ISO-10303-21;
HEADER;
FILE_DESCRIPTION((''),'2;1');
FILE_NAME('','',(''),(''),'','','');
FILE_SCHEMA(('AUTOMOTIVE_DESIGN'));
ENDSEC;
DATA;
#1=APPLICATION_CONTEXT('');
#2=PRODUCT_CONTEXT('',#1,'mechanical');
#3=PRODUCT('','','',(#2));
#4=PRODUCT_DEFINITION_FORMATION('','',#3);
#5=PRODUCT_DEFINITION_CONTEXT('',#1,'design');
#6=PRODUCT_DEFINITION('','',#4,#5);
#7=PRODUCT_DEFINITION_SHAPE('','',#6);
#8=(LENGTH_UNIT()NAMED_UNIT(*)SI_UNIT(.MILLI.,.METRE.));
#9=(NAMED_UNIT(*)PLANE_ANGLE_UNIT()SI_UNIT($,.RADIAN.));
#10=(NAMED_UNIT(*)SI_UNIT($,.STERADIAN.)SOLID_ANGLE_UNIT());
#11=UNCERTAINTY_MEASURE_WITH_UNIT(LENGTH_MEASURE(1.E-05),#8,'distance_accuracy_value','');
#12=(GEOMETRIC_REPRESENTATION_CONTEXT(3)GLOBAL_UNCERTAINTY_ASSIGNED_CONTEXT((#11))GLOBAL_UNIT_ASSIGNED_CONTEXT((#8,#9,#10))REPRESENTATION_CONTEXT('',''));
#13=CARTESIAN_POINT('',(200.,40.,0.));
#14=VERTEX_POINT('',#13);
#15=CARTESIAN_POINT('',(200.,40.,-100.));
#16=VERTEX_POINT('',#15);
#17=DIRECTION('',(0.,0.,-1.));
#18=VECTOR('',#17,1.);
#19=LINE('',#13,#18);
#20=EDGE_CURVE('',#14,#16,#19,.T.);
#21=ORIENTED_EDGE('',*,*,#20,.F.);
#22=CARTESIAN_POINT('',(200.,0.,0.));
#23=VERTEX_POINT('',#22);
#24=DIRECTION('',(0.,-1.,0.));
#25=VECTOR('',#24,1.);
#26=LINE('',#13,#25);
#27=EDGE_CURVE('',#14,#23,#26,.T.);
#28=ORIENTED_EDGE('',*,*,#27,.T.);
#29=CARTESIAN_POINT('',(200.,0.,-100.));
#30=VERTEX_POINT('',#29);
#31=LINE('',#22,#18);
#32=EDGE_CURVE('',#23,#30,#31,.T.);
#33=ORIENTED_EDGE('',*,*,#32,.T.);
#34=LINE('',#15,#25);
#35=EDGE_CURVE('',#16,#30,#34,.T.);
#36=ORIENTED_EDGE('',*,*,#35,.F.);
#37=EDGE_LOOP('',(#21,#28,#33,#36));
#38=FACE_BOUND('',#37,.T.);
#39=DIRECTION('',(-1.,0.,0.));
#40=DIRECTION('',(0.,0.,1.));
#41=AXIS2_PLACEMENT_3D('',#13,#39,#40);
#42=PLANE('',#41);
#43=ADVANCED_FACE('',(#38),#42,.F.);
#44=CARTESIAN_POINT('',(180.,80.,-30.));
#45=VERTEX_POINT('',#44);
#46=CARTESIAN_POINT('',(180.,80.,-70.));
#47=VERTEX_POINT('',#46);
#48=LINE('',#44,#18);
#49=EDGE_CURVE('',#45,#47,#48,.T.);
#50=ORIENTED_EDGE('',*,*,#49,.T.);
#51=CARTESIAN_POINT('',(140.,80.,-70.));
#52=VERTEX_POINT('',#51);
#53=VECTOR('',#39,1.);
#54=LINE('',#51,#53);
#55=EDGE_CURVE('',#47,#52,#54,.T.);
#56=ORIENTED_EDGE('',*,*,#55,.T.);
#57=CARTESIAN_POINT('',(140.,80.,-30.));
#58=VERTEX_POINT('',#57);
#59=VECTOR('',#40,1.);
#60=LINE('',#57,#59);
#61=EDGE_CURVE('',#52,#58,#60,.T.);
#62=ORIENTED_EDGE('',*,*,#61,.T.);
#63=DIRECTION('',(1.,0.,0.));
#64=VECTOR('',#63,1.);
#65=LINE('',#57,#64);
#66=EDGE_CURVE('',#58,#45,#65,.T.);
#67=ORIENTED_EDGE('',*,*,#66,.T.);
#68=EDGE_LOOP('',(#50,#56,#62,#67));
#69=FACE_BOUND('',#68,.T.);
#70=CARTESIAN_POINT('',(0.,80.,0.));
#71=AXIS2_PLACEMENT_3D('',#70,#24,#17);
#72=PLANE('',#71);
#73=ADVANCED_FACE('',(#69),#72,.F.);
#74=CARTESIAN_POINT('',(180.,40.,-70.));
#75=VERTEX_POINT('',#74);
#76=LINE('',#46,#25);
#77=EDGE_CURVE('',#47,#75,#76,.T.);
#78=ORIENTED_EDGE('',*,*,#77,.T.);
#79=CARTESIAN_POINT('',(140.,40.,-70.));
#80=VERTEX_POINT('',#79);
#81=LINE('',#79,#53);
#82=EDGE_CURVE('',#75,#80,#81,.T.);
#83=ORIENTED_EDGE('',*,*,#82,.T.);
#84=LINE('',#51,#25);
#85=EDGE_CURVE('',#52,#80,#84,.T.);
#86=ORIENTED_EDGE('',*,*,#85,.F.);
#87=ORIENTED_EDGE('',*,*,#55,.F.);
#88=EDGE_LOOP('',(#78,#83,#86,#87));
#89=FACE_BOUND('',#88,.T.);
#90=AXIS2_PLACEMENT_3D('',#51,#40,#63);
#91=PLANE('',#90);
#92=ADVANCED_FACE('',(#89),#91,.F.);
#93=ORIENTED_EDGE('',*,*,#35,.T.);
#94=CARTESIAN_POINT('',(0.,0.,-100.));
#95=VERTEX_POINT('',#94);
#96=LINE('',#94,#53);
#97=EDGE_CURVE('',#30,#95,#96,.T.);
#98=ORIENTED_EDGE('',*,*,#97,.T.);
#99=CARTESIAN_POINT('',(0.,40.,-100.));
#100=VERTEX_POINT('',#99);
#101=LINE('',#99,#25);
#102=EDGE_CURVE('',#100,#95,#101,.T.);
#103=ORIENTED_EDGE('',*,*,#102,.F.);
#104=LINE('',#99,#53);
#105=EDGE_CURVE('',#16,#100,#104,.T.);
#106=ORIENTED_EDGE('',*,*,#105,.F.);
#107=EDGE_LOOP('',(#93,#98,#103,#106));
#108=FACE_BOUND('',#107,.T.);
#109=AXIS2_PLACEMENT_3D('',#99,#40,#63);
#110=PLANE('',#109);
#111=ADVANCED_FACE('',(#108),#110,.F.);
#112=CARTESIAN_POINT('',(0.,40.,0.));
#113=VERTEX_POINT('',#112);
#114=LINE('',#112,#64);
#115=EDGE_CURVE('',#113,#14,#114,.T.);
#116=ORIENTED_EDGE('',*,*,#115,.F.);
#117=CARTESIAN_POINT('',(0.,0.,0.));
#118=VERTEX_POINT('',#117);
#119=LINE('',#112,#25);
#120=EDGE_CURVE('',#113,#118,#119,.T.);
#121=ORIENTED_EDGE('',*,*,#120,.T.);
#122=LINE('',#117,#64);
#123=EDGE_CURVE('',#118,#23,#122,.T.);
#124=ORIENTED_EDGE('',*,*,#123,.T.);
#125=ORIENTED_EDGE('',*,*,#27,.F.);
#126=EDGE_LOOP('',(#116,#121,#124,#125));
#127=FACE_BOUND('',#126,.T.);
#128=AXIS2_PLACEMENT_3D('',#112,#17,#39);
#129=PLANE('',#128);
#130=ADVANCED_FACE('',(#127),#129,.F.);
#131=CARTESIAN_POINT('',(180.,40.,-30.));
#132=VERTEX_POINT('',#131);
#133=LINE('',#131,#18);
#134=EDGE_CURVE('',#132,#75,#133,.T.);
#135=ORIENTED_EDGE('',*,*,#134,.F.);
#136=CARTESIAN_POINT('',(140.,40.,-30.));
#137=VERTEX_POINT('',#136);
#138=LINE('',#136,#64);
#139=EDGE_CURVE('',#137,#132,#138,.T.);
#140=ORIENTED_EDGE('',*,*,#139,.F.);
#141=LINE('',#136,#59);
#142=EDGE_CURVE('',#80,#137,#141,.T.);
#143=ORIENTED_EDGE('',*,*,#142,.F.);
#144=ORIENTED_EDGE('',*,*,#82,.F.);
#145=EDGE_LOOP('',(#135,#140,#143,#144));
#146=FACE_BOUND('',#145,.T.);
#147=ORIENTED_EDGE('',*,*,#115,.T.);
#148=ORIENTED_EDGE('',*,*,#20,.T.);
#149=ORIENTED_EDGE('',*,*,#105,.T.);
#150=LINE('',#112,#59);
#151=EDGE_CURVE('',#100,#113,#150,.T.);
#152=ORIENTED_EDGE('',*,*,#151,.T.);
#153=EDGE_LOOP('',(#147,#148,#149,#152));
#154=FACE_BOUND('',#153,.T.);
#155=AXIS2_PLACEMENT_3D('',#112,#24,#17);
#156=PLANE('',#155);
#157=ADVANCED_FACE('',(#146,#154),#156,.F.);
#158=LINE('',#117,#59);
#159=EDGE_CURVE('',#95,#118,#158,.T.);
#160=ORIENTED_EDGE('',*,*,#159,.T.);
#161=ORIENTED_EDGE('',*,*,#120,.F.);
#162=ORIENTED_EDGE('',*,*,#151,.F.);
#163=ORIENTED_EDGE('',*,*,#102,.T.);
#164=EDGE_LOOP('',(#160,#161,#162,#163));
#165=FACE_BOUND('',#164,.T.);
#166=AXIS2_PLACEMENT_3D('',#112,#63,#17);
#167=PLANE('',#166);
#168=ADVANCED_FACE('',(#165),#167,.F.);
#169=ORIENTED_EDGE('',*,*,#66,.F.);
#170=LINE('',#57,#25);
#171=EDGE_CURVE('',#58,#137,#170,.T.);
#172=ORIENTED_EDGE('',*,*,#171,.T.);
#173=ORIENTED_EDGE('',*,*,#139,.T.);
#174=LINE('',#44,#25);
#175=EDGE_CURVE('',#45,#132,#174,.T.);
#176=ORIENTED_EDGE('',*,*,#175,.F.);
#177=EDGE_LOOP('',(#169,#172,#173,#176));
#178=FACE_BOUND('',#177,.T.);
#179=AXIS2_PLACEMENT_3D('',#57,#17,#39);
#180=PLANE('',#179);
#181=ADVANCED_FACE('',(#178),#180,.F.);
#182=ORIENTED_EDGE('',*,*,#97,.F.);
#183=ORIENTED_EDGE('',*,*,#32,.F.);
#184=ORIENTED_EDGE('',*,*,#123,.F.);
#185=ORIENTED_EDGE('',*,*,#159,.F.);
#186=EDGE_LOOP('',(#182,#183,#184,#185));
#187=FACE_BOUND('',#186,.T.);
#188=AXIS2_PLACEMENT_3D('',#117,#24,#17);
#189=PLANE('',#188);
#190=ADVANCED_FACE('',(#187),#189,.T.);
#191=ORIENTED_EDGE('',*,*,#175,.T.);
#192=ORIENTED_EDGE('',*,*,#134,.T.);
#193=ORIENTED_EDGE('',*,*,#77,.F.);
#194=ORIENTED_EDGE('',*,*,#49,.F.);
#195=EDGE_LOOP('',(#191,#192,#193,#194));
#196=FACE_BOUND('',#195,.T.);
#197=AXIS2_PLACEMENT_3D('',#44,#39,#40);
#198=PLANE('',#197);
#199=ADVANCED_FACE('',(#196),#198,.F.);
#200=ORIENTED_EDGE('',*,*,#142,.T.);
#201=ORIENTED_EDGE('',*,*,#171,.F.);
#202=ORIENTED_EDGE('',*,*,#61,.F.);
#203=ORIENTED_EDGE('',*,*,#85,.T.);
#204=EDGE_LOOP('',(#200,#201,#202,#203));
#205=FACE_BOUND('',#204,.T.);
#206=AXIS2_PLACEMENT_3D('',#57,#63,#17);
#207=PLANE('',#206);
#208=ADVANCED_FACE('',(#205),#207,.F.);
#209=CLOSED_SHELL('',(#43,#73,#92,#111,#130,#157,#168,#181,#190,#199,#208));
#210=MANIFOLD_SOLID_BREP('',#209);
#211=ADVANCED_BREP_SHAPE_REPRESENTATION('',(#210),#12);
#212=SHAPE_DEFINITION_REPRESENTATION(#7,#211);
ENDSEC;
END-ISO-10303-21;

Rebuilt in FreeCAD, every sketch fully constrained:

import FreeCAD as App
import Part
import Sketcher
from FreeCAD import Vector
Q = App.Units.Quantity


def add_polygon(sketch, points):
    """Adds a closed chain of lines whose ends are joined by coincident constraints."""
    first, n = sketch.GeometryCount, len(points)
    for a, b in zip(points, points[1:] + points[:1]):
        sketch.addGeometry(Part.LineSegment(App.Vector(*a, 0), App.Vector(*b, 0)), False)
    for i in range(n):
        sketch.addConstraint(Sketcher.Constraint("Coincident", first + i, 2, first + (i + 1) % n, 1))

doc = App.newDocument("Part")
params = doc.addObject("Spreadsheet::Sheet", "Params")
for row, (alias, value) in enumerate([
    ("sketch1_width", "200 mm"),
    ("sketch1_height", "100 mm"),
    ("pad1_length", "40 mm"),
    ("sketch2_width", "40 mm"),
    ("pad2_length", "40 mm"),
], start=1):
    params.set(f"A{row}", alias)
    params.set(f"B{row}", "=" + value)
    params.setAlias(f"B{row}", alias)

body = doc.addObject("PartDesign::Body", "Body")

sketch1 = body.newObject("Sketcher::SketchObject", "Sketch")
sketch1.AttachmentSupport = (doc.getObject("XZ_Plane"), [""])
sketch1.MapMode = "FlatFace"
add_polygon(sketch1, [(0, -100), (0, 0), (200, 0), (200, -100)])
sketch1.addConstraint([
    Sketcher.Constraint("Vertical", 0),
    Sketcher.Constraint("Horizontal", 1),
    Sketcher.Constraint("Vertical", 2),
    Sketcher.Constraint("Horizontal", 3),
    Sketcher.Constraint("Coincident", 0, 2, -1, 1),
    Sketcher.Constraint("DistanceX", 1, 1, 1, 2, Q("200 mm")),
    Sketcher.Constraint("DistanceY", 0, 1, 0, 2, Q("100 mm")),
])
sketch1.setExpression("Constraints[9]", "Params.sketch1_width")
sketch1.setExpression("Constraints[10]", "Params.sketch1_height")
pad1 = body.newObject("PartDesign::Pad", "Pad")
pad1.Profile = sketch1
pad1.setExpression("Length", "Params.pad1_length")
pad1.Reversed = True

sketch2 = body.newObject("Sketcher::SketchObject", "Sketch001")
sketch2.AttachmentSupport = (doc.getObject("XZ_Plane"), [""])
sketch2.MapMode = "FlatFace"
sketch2.AttachmentOffset = App.Placement(Vector(0, 0, -40), App.Rotation())
add_polygon(sketch2, [(140, -70), (140, -30), (180, -30), (180, -70)])
sketch2.addConstraint([
    Sketcher.Constraint("Vertical", 0),
    Sketcher.Constraint("Horizontal", 1),
    Sketcher.Constraint("Vertical", 2),
    Sketcher.Constraint("Horizontal", 3),
    Sketcher.Constraint("Equal", 3, 0),
    Sketcher.Constraint("DistanceX", 1, 1, 1, 2, Q("40 mm")),
    Sketcher.Constraint("DistanceX", -1, 1, 0, 2, Q("140 mm")),
    Sketcher.Constraint("DistanceY", 0, 2, -1, 1, Q("30 mm")),
])
sketch2.setExpression("Constraints[9]", "Params.sketch2_width")
pad2 = body.newObject("PartDesign::Pad", "Pad001")
pad2.Profile = sketch2
pad2.setExpression("Length", "Params.pad2_length")
pad2.Reversed = True

doc.recompute()
